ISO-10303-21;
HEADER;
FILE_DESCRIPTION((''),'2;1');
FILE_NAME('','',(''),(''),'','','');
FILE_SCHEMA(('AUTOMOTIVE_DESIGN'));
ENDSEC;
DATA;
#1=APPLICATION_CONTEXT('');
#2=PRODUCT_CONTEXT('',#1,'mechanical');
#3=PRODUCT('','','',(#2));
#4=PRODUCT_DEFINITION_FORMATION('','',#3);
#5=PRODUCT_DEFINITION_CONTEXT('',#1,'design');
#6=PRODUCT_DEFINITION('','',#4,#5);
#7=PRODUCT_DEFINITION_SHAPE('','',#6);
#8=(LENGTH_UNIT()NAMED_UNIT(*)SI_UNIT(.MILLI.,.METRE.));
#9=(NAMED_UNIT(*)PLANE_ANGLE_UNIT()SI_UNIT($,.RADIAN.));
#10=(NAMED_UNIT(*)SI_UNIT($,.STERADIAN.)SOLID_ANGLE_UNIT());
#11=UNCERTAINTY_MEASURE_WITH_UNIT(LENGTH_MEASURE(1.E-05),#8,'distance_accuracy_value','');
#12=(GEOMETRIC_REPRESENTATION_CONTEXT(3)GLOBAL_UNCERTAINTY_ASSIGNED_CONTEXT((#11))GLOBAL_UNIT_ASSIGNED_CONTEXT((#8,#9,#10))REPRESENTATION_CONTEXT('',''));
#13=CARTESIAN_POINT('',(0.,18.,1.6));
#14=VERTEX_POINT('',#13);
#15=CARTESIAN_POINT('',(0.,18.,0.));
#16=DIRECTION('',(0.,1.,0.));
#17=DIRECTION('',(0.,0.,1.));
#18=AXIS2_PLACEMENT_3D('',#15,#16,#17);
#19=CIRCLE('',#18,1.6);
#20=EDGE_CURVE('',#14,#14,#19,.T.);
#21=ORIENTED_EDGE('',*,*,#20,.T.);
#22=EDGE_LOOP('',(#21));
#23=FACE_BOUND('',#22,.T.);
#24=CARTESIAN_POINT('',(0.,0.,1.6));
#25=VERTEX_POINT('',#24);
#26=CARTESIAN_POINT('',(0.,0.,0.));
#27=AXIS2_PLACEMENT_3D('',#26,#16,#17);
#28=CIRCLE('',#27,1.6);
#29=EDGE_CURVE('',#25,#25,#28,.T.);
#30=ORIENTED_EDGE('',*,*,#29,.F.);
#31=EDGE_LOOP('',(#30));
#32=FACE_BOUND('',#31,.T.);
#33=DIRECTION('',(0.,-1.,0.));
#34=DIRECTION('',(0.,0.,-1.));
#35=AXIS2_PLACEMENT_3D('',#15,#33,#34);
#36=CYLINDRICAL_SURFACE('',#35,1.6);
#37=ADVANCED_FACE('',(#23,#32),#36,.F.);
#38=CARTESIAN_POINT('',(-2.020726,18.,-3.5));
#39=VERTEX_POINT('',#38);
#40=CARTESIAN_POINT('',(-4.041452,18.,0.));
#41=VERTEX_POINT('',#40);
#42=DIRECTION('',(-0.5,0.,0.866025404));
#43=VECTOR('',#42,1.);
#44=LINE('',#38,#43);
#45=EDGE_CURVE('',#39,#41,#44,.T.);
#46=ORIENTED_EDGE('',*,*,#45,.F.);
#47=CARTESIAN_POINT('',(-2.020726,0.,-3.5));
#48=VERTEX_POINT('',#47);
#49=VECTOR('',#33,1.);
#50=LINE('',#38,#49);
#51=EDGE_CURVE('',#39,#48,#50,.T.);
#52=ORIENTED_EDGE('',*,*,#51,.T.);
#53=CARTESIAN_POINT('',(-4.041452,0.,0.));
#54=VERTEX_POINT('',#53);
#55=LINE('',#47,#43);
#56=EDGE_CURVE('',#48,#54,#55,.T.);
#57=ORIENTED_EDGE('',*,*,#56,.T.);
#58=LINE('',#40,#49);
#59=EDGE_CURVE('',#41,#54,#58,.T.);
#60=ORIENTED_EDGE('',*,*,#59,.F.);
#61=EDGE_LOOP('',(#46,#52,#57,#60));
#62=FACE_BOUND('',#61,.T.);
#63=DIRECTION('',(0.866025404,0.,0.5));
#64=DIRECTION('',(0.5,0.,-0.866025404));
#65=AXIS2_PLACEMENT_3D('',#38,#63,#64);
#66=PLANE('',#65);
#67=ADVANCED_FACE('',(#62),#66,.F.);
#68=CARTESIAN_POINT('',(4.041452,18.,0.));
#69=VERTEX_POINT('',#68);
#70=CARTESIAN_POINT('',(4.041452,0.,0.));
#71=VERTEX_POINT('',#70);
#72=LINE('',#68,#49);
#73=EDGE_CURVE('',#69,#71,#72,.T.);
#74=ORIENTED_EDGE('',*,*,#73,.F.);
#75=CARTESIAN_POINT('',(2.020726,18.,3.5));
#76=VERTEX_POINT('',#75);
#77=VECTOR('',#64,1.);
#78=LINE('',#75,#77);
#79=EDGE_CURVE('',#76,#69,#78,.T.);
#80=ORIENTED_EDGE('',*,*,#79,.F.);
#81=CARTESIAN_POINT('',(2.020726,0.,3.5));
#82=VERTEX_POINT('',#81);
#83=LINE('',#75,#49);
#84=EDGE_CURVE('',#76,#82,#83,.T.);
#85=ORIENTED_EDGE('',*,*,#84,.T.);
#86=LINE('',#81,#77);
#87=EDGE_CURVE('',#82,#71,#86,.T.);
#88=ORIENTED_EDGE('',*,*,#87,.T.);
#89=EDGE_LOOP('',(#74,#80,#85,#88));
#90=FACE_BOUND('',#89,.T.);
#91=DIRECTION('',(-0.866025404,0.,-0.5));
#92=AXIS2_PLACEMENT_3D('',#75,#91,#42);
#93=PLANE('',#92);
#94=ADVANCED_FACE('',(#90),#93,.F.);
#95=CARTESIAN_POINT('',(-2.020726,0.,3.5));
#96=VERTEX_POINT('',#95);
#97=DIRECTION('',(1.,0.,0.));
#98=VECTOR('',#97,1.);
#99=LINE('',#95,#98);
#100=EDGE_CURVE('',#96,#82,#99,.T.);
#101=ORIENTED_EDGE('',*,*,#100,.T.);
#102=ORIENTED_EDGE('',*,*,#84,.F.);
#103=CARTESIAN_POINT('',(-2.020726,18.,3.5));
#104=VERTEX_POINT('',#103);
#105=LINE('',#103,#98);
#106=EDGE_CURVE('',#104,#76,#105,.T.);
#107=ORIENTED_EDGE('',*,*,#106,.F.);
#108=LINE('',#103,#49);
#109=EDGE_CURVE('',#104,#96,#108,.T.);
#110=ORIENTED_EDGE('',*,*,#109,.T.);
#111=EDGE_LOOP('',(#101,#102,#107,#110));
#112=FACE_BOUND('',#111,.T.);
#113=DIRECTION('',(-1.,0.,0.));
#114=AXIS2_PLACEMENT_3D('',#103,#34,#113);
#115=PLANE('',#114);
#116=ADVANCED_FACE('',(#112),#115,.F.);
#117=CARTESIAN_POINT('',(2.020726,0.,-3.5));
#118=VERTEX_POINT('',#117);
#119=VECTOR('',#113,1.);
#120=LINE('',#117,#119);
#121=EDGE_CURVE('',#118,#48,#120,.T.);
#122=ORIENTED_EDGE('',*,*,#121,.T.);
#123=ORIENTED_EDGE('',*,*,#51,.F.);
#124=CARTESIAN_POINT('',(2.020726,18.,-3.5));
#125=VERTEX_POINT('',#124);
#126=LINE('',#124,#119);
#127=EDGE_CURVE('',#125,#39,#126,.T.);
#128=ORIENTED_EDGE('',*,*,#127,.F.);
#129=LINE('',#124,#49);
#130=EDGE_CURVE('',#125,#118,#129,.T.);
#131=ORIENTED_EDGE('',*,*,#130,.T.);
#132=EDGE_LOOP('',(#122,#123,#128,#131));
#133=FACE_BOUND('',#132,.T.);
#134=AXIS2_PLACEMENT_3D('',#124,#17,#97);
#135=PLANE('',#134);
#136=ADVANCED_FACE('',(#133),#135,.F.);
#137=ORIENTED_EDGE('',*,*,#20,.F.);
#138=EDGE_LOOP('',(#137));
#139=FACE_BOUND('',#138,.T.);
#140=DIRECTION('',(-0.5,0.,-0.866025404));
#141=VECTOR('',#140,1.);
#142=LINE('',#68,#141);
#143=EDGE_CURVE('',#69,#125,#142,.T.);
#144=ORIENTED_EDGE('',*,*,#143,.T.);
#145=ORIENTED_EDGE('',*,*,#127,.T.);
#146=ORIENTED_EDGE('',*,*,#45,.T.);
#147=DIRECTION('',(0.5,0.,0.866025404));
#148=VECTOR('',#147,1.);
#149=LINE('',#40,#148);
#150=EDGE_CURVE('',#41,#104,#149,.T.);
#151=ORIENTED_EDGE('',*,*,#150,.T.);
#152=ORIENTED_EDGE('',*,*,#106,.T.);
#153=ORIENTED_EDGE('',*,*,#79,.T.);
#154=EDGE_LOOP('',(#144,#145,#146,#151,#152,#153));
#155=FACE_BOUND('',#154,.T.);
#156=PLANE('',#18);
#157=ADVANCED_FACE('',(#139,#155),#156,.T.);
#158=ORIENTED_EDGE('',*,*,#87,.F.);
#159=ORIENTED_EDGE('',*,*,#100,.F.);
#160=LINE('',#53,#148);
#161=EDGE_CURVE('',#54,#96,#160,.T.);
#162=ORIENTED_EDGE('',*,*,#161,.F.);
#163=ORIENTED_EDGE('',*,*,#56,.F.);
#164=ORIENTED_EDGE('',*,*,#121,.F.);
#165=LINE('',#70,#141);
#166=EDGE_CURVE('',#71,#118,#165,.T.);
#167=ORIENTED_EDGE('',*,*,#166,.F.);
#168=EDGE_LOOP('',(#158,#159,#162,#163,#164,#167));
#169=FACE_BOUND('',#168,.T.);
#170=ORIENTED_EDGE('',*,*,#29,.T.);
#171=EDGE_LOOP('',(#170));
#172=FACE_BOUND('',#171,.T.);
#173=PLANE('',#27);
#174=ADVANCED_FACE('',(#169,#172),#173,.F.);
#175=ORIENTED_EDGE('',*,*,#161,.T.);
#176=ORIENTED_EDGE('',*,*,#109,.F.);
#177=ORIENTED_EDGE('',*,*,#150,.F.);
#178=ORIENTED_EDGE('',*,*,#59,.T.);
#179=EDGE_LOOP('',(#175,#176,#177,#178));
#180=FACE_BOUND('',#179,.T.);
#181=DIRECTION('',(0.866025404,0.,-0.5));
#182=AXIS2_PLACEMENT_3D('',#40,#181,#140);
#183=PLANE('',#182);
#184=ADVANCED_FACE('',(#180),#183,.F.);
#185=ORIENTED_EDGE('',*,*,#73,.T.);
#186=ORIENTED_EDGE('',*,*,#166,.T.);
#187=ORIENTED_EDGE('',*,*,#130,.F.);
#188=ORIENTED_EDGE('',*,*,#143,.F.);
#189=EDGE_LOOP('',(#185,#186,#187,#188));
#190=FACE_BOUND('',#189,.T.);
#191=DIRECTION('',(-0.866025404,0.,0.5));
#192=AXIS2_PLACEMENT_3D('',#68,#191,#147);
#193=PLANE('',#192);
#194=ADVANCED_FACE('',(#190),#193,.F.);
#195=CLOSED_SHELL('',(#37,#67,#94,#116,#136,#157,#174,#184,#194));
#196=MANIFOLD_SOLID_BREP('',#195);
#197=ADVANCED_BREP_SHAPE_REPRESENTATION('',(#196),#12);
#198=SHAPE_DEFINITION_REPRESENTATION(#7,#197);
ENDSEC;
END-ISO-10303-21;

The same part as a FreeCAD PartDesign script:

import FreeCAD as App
import Part
import Sketcher

V = App.Vector
Q = App.Units.Quantity


def add_polygon(sketch, points):
    """Adds a closed chain of lines whose ends are joined by coincident constraints."""
    first, n = sketch.GeometryCount, len(points)
    for a, b in zip(points, points[1:] + points[:1]):
        sketch.addGeometry(Part.LineSegment(App.Vector(*a, 0), App.Vector(*b, 0)), False)
    for i in range(n):
        sketch.addConstraint(Sketcher.Constraint("Coincident", first + i, 2, first + (i + 1) % n, 1))

doc = App.newDocument("Part")
body = doc.addObject("PartDesign::Body", "Body")

# Sketch on XZ plane
sketch1 = body.newObject("Sketcher::SketchObject", "Sketch")
sketch1.AttachmentSupport = (doc.getObject("XZ_Plane"), [""])
sketch1.MapMode = "FlatFace"
add_polygon(sketch1, [(4.041452, 0), (2.020726, -3.5), (-2.020726, -3.5), (-4.041452, 0), (-2.020726, 3.5), (2.020726, 3.5)])  # lines 0-5
sketch1.addGeometry(Part.Circle(V(0, 0, 0), V(0, 0, 1), 1.6), False)  # 6
sketch1.addConstraint([
    Sketcher.Constraint("Horizontal", 1),
    Sketcher.Constraint("Horizontal", 4),
    Sketcher.Constraint("Coincident", 6, 3, -1, 1),
    Sketcher.Constraint("Symmetric", 0, 2, 3, 2, -1, 1),
    Sketcher.Constraint("Symmetric", 2, 2, 5, 2, -1, 1),
    Sketcher.Constraint("PointOnObject", 2, 2, -1),
    Sketcher.Constraint("Parallel", 2, 5),
    Sketcher.Constraint("Vertical", 1, 2, 3, 2),
    Sketcher.Constraint("Diameter", 6, Q("3.2 mm")),
    Sketcher.Constraint("Angle", 0, Q("-120 deg")),
    Sketcher.Constraint("DistanceY", 1, 2, 3, 2, Q("7 mm")),
    Sketcher.Constraint("DistanceX", 1, 2, 1, 1, Q("4.041452 mm")),
])
pad1 = body.newObject("PartDesign::Pad", "Pad")
pad1.Profile = sketch1
pad1.Length = 18
pad1.Reversed = True

doc.recompute()
